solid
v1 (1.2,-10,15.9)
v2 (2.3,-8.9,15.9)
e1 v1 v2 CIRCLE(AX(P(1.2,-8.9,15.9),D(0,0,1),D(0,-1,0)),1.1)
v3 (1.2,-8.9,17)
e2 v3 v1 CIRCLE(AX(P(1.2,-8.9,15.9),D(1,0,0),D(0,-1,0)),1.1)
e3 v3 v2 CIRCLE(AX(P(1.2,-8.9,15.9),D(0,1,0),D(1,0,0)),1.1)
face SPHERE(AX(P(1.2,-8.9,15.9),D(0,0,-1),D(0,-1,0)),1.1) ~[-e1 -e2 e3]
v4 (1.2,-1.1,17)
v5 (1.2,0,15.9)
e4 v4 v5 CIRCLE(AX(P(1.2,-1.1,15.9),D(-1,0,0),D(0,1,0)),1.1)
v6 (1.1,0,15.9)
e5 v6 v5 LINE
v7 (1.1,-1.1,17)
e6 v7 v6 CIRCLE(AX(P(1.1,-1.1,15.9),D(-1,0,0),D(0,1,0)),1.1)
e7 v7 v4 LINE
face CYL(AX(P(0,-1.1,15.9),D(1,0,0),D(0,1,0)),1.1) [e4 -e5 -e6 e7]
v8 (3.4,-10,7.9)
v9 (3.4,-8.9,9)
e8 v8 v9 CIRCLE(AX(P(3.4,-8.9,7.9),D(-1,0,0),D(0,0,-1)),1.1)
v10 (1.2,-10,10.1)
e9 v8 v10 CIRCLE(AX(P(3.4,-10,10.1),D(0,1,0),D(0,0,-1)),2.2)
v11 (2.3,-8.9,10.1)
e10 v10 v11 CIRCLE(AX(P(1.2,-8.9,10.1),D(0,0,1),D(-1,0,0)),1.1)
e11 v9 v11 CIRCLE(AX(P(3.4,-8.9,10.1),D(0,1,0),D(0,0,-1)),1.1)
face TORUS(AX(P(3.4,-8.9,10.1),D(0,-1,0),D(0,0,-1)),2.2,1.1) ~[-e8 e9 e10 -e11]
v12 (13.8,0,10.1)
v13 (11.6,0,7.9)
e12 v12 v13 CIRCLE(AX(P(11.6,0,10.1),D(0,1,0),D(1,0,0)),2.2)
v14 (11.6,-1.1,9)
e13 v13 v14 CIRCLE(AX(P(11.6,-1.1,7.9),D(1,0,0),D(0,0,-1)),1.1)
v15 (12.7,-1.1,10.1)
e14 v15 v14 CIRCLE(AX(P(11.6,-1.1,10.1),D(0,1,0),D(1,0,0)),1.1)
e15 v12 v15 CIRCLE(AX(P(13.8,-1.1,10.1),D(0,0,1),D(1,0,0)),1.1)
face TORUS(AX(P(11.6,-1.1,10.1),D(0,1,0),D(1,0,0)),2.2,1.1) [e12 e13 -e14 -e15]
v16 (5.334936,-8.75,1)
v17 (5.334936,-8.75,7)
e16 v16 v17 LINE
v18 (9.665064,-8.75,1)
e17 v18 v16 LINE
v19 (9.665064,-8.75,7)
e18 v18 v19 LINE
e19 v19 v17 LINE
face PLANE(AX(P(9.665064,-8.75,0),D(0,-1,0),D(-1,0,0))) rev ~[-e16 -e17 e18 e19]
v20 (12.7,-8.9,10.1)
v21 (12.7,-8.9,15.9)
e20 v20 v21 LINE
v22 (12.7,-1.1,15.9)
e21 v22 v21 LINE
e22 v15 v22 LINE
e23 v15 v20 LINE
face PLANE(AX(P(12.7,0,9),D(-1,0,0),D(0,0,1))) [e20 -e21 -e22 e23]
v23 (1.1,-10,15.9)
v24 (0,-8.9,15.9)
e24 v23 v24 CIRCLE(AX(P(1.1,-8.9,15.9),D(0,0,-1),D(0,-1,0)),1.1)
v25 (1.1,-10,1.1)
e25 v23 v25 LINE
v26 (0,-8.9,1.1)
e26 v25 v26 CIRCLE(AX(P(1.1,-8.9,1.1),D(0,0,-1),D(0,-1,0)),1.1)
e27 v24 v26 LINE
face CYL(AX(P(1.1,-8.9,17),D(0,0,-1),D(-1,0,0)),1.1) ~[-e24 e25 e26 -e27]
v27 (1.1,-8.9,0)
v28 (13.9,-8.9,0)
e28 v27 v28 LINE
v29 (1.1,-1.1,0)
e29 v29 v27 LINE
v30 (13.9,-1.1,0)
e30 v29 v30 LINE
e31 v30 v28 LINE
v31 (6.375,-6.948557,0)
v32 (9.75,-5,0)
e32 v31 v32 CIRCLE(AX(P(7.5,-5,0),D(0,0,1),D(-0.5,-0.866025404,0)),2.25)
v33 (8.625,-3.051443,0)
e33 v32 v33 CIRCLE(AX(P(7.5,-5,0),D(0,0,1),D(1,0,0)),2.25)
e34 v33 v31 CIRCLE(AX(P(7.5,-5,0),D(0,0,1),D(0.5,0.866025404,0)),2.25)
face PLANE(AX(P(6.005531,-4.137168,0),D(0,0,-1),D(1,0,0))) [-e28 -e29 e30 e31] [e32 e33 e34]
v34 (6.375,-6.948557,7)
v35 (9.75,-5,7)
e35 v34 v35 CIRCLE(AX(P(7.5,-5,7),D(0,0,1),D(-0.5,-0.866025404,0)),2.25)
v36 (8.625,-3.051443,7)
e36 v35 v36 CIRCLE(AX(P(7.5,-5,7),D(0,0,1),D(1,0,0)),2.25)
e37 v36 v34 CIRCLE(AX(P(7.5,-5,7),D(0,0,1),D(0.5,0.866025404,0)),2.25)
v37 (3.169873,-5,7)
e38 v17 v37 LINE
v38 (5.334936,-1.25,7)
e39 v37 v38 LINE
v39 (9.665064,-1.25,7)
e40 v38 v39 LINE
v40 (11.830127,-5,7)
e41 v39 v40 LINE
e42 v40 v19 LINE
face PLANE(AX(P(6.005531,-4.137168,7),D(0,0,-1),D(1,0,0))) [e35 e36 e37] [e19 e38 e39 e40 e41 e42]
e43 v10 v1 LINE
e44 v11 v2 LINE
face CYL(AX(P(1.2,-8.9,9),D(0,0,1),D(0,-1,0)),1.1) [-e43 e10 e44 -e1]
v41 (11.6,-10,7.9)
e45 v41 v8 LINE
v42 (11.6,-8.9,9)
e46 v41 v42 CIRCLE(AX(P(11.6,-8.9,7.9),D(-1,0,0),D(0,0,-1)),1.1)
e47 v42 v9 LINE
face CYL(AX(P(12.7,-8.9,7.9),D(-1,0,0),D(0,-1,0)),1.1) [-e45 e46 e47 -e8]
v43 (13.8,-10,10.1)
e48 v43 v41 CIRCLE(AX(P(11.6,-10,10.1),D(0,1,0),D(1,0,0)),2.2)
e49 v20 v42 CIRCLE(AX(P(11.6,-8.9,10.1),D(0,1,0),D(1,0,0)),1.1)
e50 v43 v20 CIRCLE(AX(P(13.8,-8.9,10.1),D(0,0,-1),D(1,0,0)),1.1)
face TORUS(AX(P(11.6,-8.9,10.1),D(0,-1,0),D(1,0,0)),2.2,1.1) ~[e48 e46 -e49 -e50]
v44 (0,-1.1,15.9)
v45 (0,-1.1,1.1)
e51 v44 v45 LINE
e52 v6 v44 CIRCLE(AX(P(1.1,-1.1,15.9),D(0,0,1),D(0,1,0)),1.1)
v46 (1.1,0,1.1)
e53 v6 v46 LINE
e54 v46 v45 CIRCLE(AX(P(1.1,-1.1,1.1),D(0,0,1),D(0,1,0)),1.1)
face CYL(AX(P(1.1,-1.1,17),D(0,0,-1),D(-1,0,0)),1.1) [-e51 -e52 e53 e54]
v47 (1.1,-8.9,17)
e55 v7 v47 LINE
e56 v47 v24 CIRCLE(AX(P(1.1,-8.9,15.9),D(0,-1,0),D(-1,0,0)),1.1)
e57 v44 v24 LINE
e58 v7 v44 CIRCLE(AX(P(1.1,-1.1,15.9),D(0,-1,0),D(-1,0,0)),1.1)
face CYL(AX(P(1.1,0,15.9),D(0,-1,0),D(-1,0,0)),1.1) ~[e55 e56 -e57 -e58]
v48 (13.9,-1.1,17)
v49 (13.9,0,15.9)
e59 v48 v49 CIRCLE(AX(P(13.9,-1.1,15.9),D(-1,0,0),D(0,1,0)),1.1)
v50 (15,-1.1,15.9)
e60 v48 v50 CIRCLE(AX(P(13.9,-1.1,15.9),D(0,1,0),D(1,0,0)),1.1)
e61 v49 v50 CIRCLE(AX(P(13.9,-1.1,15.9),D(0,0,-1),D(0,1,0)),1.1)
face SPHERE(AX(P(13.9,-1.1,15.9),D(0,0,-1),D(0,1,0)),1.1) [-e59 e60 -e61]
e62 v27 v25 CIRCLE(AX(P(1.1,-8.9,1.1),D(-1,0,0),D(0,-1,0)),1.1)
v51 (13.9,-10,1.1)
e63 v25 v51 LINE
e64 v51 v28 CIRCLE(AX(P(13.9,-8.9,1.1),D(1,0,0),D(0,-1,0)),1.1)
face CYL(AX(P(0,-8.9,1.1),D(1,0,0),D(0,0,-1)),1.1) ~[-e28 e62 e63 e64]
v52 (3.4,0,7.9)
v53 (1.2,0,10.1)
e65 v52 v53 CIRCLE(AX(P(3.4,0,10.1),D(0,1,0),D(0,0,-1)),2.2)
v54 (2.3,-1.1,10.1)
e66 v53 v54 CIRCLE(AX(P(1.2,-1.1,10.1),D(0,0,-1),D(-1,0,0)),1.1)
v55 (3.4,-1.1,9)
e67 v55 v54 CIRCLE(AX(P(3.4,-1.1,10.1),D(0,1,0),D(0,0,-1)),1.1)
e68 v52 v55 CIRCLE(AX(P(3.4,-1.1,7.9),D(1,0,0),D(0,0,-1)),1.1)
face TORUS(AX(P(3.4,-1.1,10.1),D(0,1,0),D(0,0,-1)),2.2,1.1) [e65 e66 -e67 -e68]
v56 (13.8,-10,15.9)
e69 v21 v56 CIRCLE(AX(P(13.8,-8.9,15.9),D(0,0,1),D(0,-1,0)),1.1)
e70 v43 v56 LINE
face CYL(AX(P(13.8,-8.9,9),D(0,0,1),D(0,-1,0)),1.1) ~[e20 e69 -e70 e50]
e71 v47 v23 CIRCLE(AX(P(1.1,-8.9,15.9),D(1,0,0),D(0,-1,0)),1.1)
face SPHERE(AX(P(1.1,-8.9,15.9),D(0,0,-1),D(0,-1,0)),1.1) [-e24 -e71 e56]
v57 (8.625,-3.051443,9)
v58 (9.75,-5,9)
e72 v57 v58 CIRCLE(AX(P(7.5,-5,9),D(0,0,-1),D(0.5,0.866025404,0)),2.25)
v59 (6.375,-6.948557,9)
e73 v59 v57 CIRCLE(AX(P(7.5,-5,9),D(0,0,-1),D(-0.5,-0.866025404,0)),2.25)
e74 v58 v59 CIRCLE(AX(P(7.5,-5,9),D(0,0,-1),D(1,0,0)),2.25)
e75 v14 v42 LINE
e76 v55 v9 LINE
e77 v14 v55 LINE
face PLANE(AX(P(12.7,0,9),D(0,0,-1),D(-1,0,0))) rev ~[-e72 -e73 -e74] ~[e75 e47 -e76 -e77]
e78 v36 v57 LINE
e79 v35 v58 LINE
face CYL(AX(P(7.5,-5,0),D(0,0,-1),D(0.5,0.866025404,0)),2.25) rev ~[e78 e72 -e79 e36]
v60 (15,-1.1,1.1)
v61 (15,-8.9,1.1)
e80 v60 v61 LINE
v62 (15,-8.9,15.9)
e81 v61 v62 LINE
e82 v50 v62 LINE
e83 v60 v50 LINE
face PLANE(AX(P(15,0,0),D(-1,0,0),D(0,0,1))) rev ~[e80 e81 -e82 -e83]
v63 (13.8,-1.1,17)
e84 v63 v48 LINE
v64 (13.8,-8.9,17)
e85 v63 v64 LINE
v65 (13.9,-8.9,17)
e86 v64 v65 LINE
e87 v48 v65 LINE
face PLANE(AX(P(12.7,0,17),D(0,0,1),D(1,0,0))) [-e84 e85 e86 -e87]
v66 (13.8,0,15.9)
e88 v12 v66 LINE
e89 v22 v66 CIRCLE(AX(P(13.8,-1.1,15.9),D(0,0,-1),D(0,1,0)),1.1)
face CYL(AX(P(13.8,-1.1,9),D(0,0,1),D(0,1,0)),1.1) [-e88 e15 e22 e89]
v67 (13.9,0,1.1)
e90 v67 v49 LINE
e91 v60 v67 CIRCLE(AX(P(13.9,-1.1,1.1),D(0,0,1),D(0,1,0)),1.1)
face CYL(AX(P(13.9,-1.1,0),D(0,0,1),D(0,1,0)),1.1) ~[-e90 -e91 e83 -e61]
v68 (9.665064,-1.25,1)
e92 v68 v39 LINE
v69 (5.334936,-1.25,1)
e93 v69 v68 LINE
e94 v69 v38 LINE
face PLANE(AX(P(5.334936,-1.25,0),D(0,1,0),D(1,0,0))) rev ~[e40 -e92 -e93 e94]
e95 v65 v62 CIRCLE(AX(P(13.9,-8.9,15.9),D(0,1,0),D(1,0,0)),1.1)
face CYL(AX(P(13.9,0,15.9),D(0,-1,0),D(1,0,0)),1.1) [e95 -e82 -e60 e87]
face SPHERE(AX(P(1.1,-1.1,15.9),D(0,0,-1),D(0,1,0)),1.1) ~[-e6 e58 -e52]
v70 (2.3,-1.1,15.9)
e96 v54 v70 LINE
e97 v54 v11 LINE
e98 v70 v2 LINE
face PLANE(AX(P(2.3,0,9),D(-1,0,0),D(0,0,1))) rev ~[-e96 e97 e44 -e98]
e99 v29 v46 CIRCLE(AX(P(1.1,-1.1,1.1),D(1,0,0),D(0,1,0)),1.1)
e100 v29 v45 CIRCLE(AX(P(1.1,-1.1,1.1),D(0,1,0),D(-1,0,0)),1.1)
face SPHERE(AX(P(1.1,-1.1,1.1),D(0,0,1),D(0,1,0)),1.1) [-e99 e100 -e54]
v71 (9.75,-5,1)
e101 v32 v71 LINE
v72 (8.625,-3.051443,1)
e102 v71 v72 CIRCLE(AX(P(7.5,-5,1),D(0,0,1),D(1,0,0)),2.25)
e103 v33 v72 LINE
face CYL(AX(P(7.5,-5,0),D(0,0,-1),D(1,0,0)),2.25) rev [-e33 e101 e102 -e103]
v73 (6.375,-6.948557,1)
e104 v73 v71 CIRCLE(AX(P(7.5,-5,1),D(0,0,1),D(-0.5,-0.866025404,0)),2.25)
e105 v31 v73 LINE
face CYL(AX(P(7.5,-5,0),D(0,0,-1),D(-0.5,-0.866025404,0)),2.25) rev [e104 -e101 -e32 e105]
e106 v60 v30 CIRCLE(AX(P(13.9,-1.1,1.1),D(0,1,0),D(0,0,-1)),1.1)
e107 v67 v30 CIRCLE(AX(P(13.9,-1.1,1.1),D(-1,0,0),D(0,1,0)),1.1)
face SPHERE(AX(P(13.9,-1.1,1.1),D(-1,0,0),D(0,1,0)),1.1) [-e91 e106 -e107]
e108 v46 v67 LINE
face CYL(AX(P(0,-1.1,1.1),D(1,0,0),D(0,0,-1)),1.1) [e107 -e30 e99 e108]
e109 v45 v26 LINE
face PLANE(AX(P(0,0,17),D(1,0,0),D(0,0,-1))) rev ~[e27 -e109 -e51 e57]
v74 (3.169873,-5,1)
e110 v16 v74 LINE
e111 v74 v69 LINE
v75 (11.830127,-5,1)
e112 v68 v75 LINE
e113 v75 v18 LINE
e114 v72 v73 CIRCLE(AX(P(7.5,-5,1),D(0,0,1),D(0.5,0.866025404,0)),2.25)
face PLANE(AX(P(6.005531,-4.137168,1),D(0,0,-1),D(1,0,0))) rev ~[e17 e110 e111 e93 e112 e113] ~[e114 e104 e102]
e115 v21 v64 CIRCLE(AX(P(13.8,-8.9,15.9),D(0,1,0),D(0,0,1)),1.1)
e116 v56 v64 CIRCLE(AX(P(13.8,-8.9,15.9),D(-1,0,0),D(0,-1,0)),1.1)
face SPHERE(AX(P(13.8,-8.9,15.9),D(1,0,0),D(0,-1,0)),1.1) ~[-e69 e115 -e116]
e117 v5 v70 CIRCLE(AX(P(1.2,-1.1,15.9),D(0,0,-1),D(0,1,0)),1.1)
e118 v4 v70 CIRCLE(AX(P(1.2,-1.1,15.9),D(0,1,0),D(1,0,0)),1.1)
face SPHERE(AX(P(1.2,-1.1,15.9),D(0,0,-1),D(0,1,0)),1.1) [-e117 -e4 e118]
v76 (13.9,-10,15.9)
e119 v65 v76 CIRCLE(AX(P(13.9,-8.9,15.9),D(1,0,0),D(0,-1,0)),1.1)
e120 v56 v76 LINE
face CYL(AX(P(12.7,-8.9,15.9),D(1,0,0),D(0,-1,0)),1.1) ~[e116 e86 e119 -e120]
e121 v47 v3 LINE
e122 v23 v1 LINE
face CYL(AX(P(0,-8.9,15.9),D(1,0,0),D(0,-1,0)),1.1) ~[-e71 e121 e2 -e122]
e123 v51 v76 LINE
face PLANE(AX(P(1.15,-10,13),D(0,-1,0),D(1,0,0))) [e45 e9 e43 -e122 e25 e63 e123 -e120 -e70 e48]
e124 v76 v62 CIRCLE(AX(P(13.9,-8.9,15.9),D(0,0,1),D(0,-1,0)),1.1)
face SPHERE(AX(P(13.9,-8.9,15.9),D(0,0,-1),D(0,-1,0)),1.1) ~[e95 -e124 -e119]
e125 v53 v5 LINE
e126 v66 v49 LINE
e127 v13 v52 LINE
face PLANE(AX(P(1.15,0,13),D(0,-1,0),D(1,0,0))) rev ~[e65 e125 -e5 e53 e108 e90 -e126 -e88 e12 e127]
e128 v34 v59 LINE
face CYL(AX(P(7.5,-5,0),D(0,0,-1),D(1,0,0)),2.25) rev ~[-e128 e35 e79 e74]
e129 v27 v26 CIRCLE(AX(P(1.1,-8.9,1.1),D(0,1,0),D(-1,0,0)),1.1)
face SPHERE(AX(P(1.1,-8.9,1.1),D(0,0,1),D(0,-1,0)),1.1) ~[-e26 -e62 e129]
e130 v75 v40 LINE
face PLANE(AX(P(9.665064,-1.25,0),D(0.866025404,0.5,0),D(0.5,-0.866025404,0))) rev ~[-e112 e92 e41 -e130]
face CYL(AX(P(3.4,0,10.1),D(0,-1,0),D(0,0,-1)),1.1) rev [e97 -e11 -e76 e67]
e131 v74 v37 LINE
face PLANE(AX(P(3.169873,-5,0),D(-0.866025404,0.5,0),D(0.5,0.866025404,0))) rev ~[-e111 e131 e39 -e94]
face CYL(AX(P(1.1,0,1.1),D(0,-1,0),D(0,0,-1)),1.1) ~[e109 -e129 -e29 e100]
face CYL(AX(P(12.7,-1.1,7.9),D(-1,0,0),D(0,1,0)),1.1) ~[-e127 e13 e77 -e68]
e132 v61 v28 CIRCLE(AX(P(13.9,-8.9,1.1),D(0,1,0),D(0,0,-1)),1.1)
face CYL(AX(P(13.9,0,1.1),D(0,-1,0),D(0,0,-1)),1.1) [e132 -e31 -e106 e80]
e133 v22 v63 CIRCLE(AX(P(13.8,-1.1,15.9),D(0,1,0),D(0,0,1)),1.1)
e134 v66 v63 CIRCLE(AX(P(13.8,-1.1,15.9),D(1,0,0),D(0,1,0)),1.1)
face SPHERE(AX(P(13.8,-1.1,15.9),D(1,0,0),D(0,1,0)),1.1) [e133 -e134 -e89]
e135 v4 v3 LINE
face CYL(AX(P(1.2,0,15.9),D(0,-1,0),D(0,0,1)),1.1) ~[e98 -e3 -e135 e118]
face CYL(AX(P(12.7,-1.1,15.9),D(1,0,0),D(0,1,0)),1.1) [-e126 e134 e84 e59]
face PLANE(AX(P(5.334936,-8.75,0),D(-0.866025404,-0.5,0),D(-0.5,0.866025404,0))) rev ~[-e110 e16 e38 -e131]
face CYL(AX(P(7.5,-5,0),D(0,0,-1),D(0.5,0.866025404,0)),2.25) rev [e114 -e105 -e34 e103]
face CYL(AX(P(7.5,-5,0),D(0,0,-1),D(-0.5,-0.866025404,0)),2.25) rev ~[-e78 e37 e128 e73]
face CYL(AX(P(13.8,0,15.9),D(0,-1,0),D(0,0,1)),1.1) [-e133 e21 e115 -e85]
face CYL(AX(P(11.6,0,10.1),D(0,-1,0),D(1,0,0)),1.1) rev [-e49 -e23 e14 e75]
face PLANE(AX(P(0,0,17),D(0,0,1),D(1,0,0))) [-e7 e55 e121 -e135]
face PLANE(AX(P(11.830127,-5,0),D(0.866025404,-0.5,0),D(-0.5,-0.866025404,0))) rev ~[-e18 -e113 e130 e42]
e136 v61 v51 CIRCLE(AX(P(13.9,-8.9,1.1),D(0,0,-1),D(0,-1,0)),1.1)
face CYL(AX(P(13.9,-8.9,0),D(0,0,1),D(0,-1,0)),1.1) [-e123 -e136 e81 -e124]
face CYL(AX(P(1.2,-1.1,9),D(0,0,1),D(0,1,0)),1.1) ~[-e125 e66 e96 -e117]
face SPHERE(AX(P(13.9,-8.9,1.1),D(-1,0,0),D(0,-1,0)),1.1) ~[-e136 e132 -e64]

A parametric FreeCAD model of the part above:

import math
import FreeCAD as App
import Part
import Sketcher
Q = App.Units.Quantity


def edges_at(feature, points):
    """Names of the edges that pass closest to the given points."""
    edges = feature.Shape.Edges
    near = lambda p: min(range(len(edges)), key=lambda i: edges[i].distToShape(Part.Vertex(*p))[0])
    return sorted({f"Edge{near(p) + 1}" for p in points})


def add_polygon(sketch, points):
    """Adds a closed chain of lines whose ends are joined by coincident constraints."""
    first, n = sketch.GeometryCount, len(points)
    for a, b in zip(points, points[1:] + points[:1]):
        sketch.addGeometry(Part.LineSegment(App.Vector(*a, 0), App.Vector(*b, 0)), False)
    for i in range(n):
        sketch.addConstraint(Sketcher.Constraint("Coincident", first + i, 2, first + (i + 1) % n, 1))

doc = App.newDocument("Part")
body = doc.addObject("PartDesign::Body", "Body")

sketch1 = body.newObject("Sketcher::SketchObject", "Sketch")
sketch1.AttachmentSupport = (doc.getObject("XZ_Plane"), [""])
sketch1.MapMode = "FlatFace"
add_polygon(sketch1, [(0, 17), (0, 0), (15, 0), (15, 17), (12.7, 17), (12.7, 9), (2.3, 9), (2.3, 17)])
sketch1.addConstraint([
    Sketcher.Constraint("Vertical", 0),
    Sketcher.Constraint("Horizontal", 1),
    Sketcher.Constraint("Vertical", 2),
    Sketcher.Constraint("Horizontal", 3),
    Sketcher.Constraint("Vertical", 4),
    Sketcher.Constraint("Horizontal", 5),
    Sketcher.Constraint("Vertical", 6),
    Sketcher.Constraint("Horizontal", 7),
    Sketcher.Constraint("Coincident", 0, 2, -1, 1),
    Sketcher.Constraint("Horizontal", 3, 2, 6, 2),
    Sketcher.Constraint("Equal", 3, 7),
    Sketcher.Constraint("DistanceX", 1, 1, 1, 2, 15.0),
    Sketcher.Constraint("DistanceY", 0, 2, 0, 1, 17.0),
    Sketcher.Constraint("DistanceY", 4, 2, 4, 1, 8.0),
    Sketcher.Constraint("DistanceX", 3, 2, 3, 1, 2.3),
])
pad1 = body.newObject("PartDesign::Pad", "Pad")
pad1.Profile = sketch1
pad1.Length = 10

sketch2 = body.newObject("Sketcher::SketchObject", "Sketch001")
sketch2.AttachmentSupport = (doc.getObject("XY_Plane"), [""])
sketch2.MapMode = "FlatFace"
sketch2.addGeometry([
    Part.ArcOfCircle(Part.Circle(App.Vector(7.5, -5, 0), App.Vector(0, 0, 1), 2.2), math.radians(60), math.radians(240)),
    Part.ArcOfCircle(Part.Circle(App.Vector(7.5, -5, 0), App.Vector(0, 0, 1), 2.2), math.radians(0), math.radians(60)),
    Part.ArcOfCircle(Part.Circle(App.Vector(7.5, -5, 0), App.Vector(0, 0, 1), 2.2), math.radians(-120), math.radians(0)),
], False)
sketch2.addConstraint([
    Sketcher.Constraint("Tangent", 0, 1, 1, 2),
    Sketcher.Constraint("Tangent", 1, 1, 2, 2),
    Sketcher.Constraint("Tangent", 2, 1, 0, 2),
    Sketcher.Constraint("Horizontal", 2, 3, 1, 1),
    Sketcher.Constraint("Radius", 0, 2.25),
    Sketcher.Constraint("DistanceY", 0, 3, -1, 1, 5.0),
    Sketcher.Constraint("DistanceX", -1, 1, 0, 3, 7.5),
    Sketcher.Constraint("DistanceX", 2, 1, 0, 1, 2.25),
    Sketcher.Constraint("DistanceX", -1, 1, 0, 1, 8.625),
])
pocket1 = body.newObject("PartDesign::Pocket", "Pocket")
pocket1.Profile = sketch2
pocket1.Type = "ThroughAll"
pocket1.Reversed = True

sketch3 = body.newObject("Sketcher::SketchObject", "Sketch002")
sketch3.AttachmentSupport = (doc.getObject("XY_Plane"), [""])
sketch3.MapMode = "FlatFace"
add_polygon(sketch3, [(5.3, -8.8), (3.2, -5), (5.3, -1.2), (9.7, -1.2), (11.8, -5), (9.7, -8.8)])
sketch3.addGeometry(Part.ArcOfCircle(Part.Circle(App.Vector(7.5, -5, 0), App.Vector(0, 0, 1), 2.2), math.radians(60), math.radians(240)), False)
sketch3.addGeometry(Part.ArcOfCircle(Part.Circle(App.Vector(7.5, -5, 0), App.Vector(0, 0, 1), 2.2), math.radians(-120), math.radians(0)), False)
sketch3.addGeometry(Part.ArcOfCircle(Part.Circle(App.Vector(7.5, -5, 0), App.Vector(0, 0, 1), 2.2), math.radians(0), math.radians(60)), False)
sketch3.addConstraint([
    Sketcher.Constraint("Tangent", 6, 2, 7, 1),
    Sketcher.Constraint("Tangent", 7, 2, 8, 1),
    Sketcher.Constraint("Tangent", 8, 2, 6, 1),
    Sketcher.Constraint("Horizontal", 2),
    Sketcher.Constraint("Horizontal", 5),
    Sketcher.Constraint("Parallel", 0, 3),
    Sketcher.Constraint("Parallel", 1, 4),
    Sketcher.Constraint("Horizontal", 8, 3, 0, 2),
    Sketcher.Constraint("Horizontal", 0, 2, 3, 2),
    Sketcher.Constraint("Horizontal", 3, 2, 7, 2),
    Sketcher.Constraint("Vertical", 2, 2, 4, 2),
    Sketcher.Constraint("Vertical", 1, 2, 5, 2),
    Sketcher.Constraint("Angle", 0, Q("120 deg")),
    Sketcher.Constraint("Radius", 6, 2.25),
    Sketcher.Constraint("DistanceY", 6, 3, -1, 1, 5.0),
    Sketcher.Constraint("DistanceX", -1, 1, 6, 3, 7.5),
    Sketcher.Constraint("DistanceY", 1, 2, -1, 1, 1.25),
    Sketcher.Constraint("DistanceX", -1, 1, 6, 2, 6.375),
    Sketcher.Constraint("DistanceX", -1, 1, 8, 2, 8.625),
    Sketcher.Constraint("DistanceX", 2, 1, 2, 2, 4.330127),
    Sketcher.Constraint("DistanceX", -1, 1, 0, 2, 3.169873),
])
pocket2 = body.newObject("PartDesign::Pocket", "Pocket001")
pocket2.Profile = sketch3
pocket2.Length = 7
pocket2.Reversed = True

sketch4 = body.newObject("Sketcher::SketchObject", "Sketch003")
sketch4.AttachmentSupport = (doc.getObject("XY_Plane"), [""])
sketch4.MapMode = "FlatFace"
add_polygon(sketch4, [(5.3, -8.8), (3.2, -5), (5.3, -1.2), (9.7, -1.2), (11.8, -5), (9.7, -8.8)])
sketch4.addGeometry(Part.ArcOfCircle(Part.Circle(App.Vector(7.5, -5, 0), App.Vector(0, 0, 1), 2.2), math.radians(60), math.radians(240)), False)
sketch4.addGeometry(Part.ArcOfCircle(Part.Circle(App.Vector(7.5, -5, 0), App.Vector(0, 0, 1), 2.2), math.radians(-120), math.radians(0)), False)
sketch4.addGeometry(Part.ArcOfCircle(Part.Circle(App.Vector(7.5, -5, 0), App.Vector(0, 0, 1), 2.2), math.radians(0), math.radians(60)), False)
sketch4.addConstraint([
    Sketcher.Constraint("Tangent", 6, 2, 7, 1),
    Sketcher.Constraint("Tangent", 7, 2, 8, 1),
    Sketcher.Constraint("Tangent", 8, 2, 6, 1),
    Sketcher.Constraint("Horizontal", 2),
    Sketcher.Constraint("Horizontal", 5),
    Sketcher.Constraint("Parallel", 0, 3),
    Sketcher.Constraint("Parallel", 1, 4),
    Sketcher.Constraint("Horizontal", 8, 3, 0, 2),
    Sketcher.Constraint("Horizontal", 0, 2, 3, 2),
    Sketcher.Constraint("Horizontal", 3, 2, 7, 2),
    Sketcher.Constraint("Vertical", 2, 2, 4, 2),
    Sketcher.Constraint("Vertical", 1, 2, 5, 2),
    Sketcher.Constraint("Angle", 0, Q("120 deg")),
    Sketcher.Constraint("Radius", 6, 2.25),
    Sketcher.Constraint("DistanceY", 6, 3, -1, 1, 5.0),
    Sketcher.Constraint("DistanceX", -1, 1, 6, 3, 7.5),
    Sketcher.Constraint("DistanceY", 1, 2, -1, 1, 1.25),
    Sketcher.Constraint("DistanceX", -1, 1, 6, 2, 6.375),
    Sketcher.Constraint("DistanceX", -1, 1, 8, 2, 8.625),
    Sketcher.Constraint("DistanceX", 2, 1, 2, 2, 4.330127),
    Sketcher.Constraint("DistanceX", -1, 1, 0, 2, 3.169873),
])
pad2 = body.newObject("PartDesign::Pad", "Pad001")
pad2.Profile = sketch4
pad2.Length = 1
doc.recompute()

fillet = body.newObject("PartDesign::Fillet", "Fillet")
fillet.Base = (pad2, edges_at(pad2, [
    (0, 0, 8.5),
    (7.5, 0, 0),
    (15, 0, 8.5),
    (13.85, 0, 17),
    (12.7, 0, 13),
    (7.5, 0, 9),
    (2.3, 0, 13),
    (1.15, 0, 17),
    (0, -10, 8.5),
    (7.5, -10, 0),
    (15, -10, 8.5),
    (13.85, -10, 17),
    (12.7, -10, 13),
    (7.5, -10, 9),
    (2.3, -10, 13),
    (1.15, -10, 17),
    (15, -5, 0),
    (15, -5, 17),
    (0, -5, 17),
    (0, -5, 0),
    (12.7, -5, 17),
    (12.7, -5, 9),
    (2.3, -5, 9),
    (2.3, -5, 17),
]))
fillet.Radius = 1.1

doc.recompute()
